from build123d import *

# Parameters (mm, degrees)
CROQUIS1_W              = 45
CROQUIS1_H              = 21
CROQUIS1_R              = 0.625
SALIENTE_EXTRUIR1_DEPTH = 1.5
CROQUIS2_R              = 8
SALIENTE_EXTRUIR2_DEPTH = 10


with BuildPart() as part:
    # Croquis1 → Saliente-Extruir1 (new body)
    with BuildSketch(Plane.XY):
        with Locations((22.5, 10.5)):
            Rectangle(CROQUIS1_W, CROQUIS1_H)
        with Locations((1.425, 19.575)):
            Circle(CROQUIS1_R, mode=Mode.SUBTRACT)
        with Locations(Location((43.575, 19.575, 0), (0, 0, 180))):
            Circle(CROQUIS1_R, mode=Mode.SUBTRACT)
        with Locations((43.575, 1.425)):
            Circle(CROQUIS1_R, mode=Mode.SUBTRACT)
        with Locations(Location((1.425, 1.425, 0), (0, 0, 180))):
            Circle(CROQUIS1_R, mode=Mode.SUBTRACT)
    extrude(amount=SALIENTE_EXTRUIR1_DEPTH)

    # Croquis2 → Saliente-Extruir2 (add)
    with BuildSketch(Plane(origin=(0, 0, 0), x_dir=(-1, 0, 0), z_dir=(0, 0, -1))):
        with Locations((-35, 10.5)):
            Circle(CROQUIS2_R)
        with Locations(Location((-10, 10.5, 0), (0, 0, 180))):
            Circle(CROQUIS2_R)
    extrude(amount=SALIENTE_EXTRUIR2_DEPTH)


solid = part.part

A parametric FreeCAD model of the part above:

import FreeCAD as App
import Part
import Sketcher
from FreeCAD import Vector

doc = App.newDocument("Part")
params = doc.addObject("Spreadsheet::Sheet", "Params")
for row, (alias, value) in enumerate([
    ("sketch1_diameter", "1.25 mm"),
    ("sketch1_width", "45 mm"),
    ("sketch1_height", "21 mm"),
    ("pad1_length", "1.5 mm"),
    ("sketch2_diameter", "16 mm"),
    ("pad2_length", "10 mm"),
], start=1):
    params.set(f"A{row}", alias)
    params.set(f"B{row}", "=" + value)
    params.setAlias(f"B{row}", alias)

body = doc.addObject("PartDesign::Body", "Body")

sketch1 = body.newObject("Sketcher::SketchObject", "Sketch")
sketch1.AttachmentSupport = (doc.getObject("XY_Plane"), [""])
sketch1.MapMode = "FlatFace"
sketch1.addGeometry([
    Part.LineSegment(Vector(0, 21, 0), Vector(0, 0, 0)),
    Part.LineSegment(Vector(0, 0, 0), Vector(45, 0, 0)),
    Part.LineSegment(Vector(45, 0, 0), Vector(45, 21, 0)),
    Part.LineSegment(Vector(45, 21, 0), Vector(0, 21, 0)),
    Part.Circle(Vector(1.425, 1.425, 0), Vector(0, 0, 1), 0.625),
    Part.Circle(Vector(43.575, 1.425, 0), Vector(0, 0, 1), 0.625),
    Part.Circle(Vector(1.425, 19.575, 0), Vector(0, 0, 1), 0.625),
    Part.Circle(Vector(43.575, 19.575, 0), Vector(0, 0, 1), 0.625),
], False)
sketch1.addConstraint([
    Sketcher.Constraint("Coincident", 0, 2, 1, 1),
    Sketcher.Constraint("Coincident", 1, 2, 2, 1),
    Sketcher.Constraint("Coincident", 2, 2, 3, 1),
    Sketcher.Constraint("Coincident", 3, 2, 0, 1),
    Sketcher.Constraint("Vertical", 0),
    Sketcher.Constraint("Horizontal", 1),
    Sketcher.Constraint("Vertical", 2),
    Sketcher.Constraint("Horizontal", 3),
    Sketcher.Constraint("Coincident", 0, 2, -1, 1),
    Sketcher.Constraint("Equal", 4, 5),
    Sketcher.Constraint("Equal", 5, 6),
    Sketcher.Constraint("Equal", 6, 7),
    Sketcher.Constraint("Horizontal", 4, 3, 5, 3),
    Sketcher.Constraint("Horizontal", 6, 3, 7, 3),
    Sketcher.Constraint("Vertical", 4, 3, 6, 3),
    Sketcher.Constraint("Vertical", 5, 3, 7, 3),
    Sketcher.Constraint("Diameter", 4, 1.25),
    Sketcher.Constraint("DistanceX", 1, 1, 1, 2, 45.0),
    Sketcher.Constraint("DistanceY", 0, 2, 0, 1, 21.0),
    Sketcher.Constraint("DistanceX", 4, 3, 5, 3, 42.15),
    Sketcher.Constraint("DistanceY", 4, 3, 6, 3, 18.15),
    Sketcher.Constraint("DistanceX", -1, 1, 4, 3, 1.425),
    Sketcher.Constraint("DistanceY", -1, 1, 4, 3, 1.425),
])
sketch1.setExpression("Constraints[16]", "Params.sketch1_diameter")
sketch1.setExpression("Constraints[17]", "Params.sketch1_width")
sketch1.setExpression("Constraints[18]", "Params.sketch1_height")
pad1 = body.newObject("PartDesign::Pad", "Pad")
pad1.Profile = sketch1
pad1.setExpression("Length", "Params.pad1_length")

sketch2 = body.newObject("Sketcher::SketchObject", "Sketch001")
sketch2.AttachmentSupport = (doc.getObject("XY_Plane"), [""])
sketch2.MapMode = "FlatFace"
sketch2.addGeometry([
    Part.Circle(Vector(35, 10.5, 0), Vector(0, 0, 1), 8),
    Part.Circle(Vector(10, 10.5, 0), Vector(0, 0, 1), 8),
], False)
sketch2.addConstraint([
    Sketcher.Constraint("Equal", 0, 1),
    Sketcher.Constraint("Horizontal", 0, 3, 1, 3),
    Sketcher.Constraint("Diameter", 0, 16.0),
    Sketcher.Constraint("DistanceX", -1, 1, 0, 3, 35.0),
    Sketcher.Constraint("DistanceX", -1, 1, 1, 3, 10.0),
    Sketcher.Constraint("DistanceY", -1, 1, 0, 3, 10.5),
])
sketch2.setExpression("Constraints[2]", "Params.sketch2_diameter")
pad2 = body.newObject("PartDesign::Pad", "Pad001")
pad2.Profile = sketch2
pad2.setExpression("Length", "Params.pad2_length")
pad2.Reversed = True

doc.recompute()
